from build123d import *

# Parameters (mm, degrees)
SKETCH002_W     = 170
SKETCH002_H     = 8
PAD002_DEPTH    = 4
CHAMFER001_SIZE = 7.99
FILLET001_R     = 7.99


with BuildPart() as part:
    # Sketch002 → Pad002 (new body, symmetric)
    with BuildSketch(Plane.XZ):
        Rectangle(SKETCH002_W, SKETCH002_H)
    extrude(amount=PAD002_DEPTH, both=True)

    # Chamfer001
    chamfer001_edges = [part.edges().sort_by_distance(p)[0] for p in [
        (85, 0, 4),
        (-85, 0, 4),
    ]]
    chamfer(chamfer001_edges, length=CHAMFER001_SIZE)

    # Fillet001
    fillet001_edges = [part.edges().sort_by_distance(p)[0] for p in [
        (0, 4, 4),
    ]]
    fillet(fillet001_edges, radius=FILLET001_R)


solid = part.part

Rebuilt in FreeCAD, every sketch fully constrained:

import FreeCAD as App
import Part
import Sketcher
from FreeCAD import Vector


def edges_at(feature, points):
    """Names of the edges that pass closest to the given points."""
    edges = feature.Shape.Edges
    near = lambda p: min(range(len(edges)), key=lambda i: edges[i].distToShape(Part.Vertex(*p))[0])
    return sorted({f"Edge{near(p) + 1}" for p in points})


def add_polygon(sketch, points):
    """Adds a closed chain of lines whose ends are joined by coincident constraints."""
    first, n = sketch.GeometryCount, len(points)
    for a, b in zip(points, points[1:] + points[:1]):
        sketch.addGeometry(Part.LineSegment(App.Vector(*a, 0), App.Vector(*b, 0)), False)
    for i in range(n):
        sketch.addConstraint(Sketcher.Constraint("Coincident", first + i, 2, first + (i + 1) % n, 1))

doc = App.newDocument("Part")
body = doc.addObject("PartDesign::Body", "Body")

sketch1 = body.newObject("Sketcher::SketchObject", "Sketch")
sketch1.AttachmentSupport = (doc.getObject("XZ_Plane"), [""])
sketch1.MapMode = "FlatFace"
add_polygon(sketch1, [(-85, 4), (-85, -4), (85, -4), (85, 4)])
sketch1.addConstraint([
    Sketcher.Constraint("Vertical", 0),
    Sketcher.Constraint("Horizontal", 1),
    Sketcher.Constraint("Vertical", 2),
    Sketcher.Constraint("Horizontal", 3),
    Sketcher.Constraint("Symmetric", 0, 2, 2, 2, -1, 1),
    Sketcher.Constraint("DistanceX", 1, 1, 1, 2, 170.0),
    Sketcher.Constraint("DistanceY", 0, 2, 0, 1, 8.0),
])
pad1 = body.newObject("PartDesign::Pad", "Pad")
pad1.Profile = sketch1
pad1.Length = 8
pad1.Midplane = True
doc.recompute()

chamfer = body.newObject("PartDesign::Chamfer", "Chamfer")
chamfer.Base = (pad1, edges_at(pad1, [(85, 0, 4), (-85, 0, 4)]))
chamfer.Size = 7.99
doc.recompute()

fillet = body.newObject("PartDesign::Fillet", "Fillet")
fillet.Base = (chamfer, edges_at(chamfer, [(0, 4, 4)]))
fillet.Radius = 7.99

doc.recompute()
